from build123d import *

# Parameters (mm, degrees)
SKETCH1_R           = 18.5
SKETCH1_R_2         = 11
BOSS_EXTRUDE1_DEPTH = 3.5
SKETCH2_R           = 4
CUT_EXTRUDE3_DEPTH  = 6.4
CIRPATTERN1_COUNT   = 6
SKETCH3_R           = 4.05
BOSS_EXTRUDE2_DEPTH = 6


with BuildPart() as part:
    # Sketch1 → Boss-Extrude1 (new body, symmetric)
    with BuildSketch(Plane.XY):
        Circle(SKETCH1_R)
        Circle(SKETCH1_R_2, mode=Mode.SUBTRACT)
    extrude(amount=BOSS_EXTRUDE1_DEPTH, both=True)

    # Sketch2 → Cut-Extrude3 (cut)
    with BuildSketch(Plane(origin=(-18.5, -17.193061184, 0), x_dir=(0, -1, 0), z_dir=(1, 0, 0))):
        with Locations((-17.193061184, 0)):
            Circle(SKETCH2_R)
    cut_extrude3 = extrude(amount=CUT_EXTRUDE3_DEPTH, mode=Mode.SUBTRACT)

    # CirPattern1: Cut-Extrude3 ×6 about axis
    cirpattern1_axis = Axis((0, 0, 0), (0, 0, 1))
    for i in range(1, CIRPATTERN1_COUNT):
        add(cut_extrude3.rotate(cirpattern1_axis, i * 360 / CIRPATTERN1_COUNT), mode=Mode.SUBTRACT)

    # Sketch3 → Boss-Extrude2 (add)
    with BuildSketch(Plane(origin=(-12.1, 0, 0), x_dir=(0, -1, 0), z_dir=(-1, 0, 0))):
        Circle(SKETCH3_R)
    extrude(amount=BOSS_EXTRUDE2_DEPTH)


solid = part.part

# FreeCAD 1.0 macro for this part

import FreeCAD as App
import Part
import Sketcher
Q = App.Units.Quantity

doc = App.newDocument("Part")
body = doc.addObject("PartDesign::Body", "Body")

# Sketch on XY plane
sketch1 = body.newObject("Sketcher::SketchObject", "Sketch")
sketch1.AttachmentSupport = (doc.getObject("XY_Plane"), [""])
sketch1.MapMode = "FlatFace"
sketch1.addGeometry(Part.Circle(App.Vector(0, 0, 0), App.Vector(0, 0, 1), 18.5), False)
sketch1.addGeometry(Part.Circle(App.Vector(0, 0, 0), App.Vector(0, 0, 1), 11), False)
sketch1.addConstraint(Sketcher.Constraint("Coincident", 0, 3, -1, 1))
sketch1.addConstraint(Sketcher.Constraint("Coincident", 1, 3, -1, 1))
sketch1.addConstraint(Sketcher.Constraint("Diameter", 0, Q("37 mm")))
sketch1.addConstraint(Sketcher.Constraint("Diameter", 1, Q("22 mm")))
pad1 = body.newObject("PartDesign::Pad", "Pad")
pad1.Profile = sketch1
pad1.Length = 7
pad1.Midplane = True

# Sketch on YZ plane
sketch2 = body.newObject("Sketcher::SketchObject", "Sketch001")
sketch2.AttachmentSupport = (doc.getObject("YZ_Plane"), [""])
sketch2.MapMode = "FlatFace"
sketch2.AttachmentOffset = App.Placement(App.Vector(0, 0, -18.5), App.Rotation())
sketch2.addGeometry(Part.Circle(App.Vector(0, 0, 0), App.Vector(0, 0, 1), 4), False)
sketch2.addConstraint(Sketcher.Constraint("Coincident", 0, 3, -1, 1))
sketch2.addConstraint(Sketcher.Constraint("Diameter", 0, Q("8 mm")))
pocket1 = body.newObject("PartDesign::Pocket", "Pocket")
pocket1.Profile = sketch2
pocket1.Length = 6.4
pocket1.Reversed = True
doc.recompute()

polarpattern = body.newObject("PartDesign::PolarPattern", "PolarPattern")
polarpattern.Originals = [pocket1]
polarpattern.Axis = (doc.getObject("Z_Axis"), [""])
polarpattern.Angle = 360
polarpattern.Occurrences = 6
body.Tip = polarpattern

# Sketch on YZ plane
sketch3 = body.newObject("Sketcher::SketchObject", "Sketch002")
sketch3.AttachmentSupport = (doc.getObject("YZ_Plane"), [""])
sketch3.MapMode = "FlatFace"
sketch3.AttachmentOffset = App.Placement(App.Vector(0, 0, -12.1), App.Rotation())
sketch3.addGeometry(Part.Circle(App.Vector(0, 0, 0), App.Vector(0, 0, 1), 4.05), False)
sketch3.addConstraint(Sketcher.Constraint("Coincident", 0, 3, -1, 1))
sketch3.addConstraint(Sketcher.Constraint("Diameter", 0, Q("8.1 mm")))
pad2 = body.newObject("PartDesign::Pad", "Pad001")
pad2.Profile = sketch3
pad2.Length = 6
pad2.Reversed = True

doc.recompute()
